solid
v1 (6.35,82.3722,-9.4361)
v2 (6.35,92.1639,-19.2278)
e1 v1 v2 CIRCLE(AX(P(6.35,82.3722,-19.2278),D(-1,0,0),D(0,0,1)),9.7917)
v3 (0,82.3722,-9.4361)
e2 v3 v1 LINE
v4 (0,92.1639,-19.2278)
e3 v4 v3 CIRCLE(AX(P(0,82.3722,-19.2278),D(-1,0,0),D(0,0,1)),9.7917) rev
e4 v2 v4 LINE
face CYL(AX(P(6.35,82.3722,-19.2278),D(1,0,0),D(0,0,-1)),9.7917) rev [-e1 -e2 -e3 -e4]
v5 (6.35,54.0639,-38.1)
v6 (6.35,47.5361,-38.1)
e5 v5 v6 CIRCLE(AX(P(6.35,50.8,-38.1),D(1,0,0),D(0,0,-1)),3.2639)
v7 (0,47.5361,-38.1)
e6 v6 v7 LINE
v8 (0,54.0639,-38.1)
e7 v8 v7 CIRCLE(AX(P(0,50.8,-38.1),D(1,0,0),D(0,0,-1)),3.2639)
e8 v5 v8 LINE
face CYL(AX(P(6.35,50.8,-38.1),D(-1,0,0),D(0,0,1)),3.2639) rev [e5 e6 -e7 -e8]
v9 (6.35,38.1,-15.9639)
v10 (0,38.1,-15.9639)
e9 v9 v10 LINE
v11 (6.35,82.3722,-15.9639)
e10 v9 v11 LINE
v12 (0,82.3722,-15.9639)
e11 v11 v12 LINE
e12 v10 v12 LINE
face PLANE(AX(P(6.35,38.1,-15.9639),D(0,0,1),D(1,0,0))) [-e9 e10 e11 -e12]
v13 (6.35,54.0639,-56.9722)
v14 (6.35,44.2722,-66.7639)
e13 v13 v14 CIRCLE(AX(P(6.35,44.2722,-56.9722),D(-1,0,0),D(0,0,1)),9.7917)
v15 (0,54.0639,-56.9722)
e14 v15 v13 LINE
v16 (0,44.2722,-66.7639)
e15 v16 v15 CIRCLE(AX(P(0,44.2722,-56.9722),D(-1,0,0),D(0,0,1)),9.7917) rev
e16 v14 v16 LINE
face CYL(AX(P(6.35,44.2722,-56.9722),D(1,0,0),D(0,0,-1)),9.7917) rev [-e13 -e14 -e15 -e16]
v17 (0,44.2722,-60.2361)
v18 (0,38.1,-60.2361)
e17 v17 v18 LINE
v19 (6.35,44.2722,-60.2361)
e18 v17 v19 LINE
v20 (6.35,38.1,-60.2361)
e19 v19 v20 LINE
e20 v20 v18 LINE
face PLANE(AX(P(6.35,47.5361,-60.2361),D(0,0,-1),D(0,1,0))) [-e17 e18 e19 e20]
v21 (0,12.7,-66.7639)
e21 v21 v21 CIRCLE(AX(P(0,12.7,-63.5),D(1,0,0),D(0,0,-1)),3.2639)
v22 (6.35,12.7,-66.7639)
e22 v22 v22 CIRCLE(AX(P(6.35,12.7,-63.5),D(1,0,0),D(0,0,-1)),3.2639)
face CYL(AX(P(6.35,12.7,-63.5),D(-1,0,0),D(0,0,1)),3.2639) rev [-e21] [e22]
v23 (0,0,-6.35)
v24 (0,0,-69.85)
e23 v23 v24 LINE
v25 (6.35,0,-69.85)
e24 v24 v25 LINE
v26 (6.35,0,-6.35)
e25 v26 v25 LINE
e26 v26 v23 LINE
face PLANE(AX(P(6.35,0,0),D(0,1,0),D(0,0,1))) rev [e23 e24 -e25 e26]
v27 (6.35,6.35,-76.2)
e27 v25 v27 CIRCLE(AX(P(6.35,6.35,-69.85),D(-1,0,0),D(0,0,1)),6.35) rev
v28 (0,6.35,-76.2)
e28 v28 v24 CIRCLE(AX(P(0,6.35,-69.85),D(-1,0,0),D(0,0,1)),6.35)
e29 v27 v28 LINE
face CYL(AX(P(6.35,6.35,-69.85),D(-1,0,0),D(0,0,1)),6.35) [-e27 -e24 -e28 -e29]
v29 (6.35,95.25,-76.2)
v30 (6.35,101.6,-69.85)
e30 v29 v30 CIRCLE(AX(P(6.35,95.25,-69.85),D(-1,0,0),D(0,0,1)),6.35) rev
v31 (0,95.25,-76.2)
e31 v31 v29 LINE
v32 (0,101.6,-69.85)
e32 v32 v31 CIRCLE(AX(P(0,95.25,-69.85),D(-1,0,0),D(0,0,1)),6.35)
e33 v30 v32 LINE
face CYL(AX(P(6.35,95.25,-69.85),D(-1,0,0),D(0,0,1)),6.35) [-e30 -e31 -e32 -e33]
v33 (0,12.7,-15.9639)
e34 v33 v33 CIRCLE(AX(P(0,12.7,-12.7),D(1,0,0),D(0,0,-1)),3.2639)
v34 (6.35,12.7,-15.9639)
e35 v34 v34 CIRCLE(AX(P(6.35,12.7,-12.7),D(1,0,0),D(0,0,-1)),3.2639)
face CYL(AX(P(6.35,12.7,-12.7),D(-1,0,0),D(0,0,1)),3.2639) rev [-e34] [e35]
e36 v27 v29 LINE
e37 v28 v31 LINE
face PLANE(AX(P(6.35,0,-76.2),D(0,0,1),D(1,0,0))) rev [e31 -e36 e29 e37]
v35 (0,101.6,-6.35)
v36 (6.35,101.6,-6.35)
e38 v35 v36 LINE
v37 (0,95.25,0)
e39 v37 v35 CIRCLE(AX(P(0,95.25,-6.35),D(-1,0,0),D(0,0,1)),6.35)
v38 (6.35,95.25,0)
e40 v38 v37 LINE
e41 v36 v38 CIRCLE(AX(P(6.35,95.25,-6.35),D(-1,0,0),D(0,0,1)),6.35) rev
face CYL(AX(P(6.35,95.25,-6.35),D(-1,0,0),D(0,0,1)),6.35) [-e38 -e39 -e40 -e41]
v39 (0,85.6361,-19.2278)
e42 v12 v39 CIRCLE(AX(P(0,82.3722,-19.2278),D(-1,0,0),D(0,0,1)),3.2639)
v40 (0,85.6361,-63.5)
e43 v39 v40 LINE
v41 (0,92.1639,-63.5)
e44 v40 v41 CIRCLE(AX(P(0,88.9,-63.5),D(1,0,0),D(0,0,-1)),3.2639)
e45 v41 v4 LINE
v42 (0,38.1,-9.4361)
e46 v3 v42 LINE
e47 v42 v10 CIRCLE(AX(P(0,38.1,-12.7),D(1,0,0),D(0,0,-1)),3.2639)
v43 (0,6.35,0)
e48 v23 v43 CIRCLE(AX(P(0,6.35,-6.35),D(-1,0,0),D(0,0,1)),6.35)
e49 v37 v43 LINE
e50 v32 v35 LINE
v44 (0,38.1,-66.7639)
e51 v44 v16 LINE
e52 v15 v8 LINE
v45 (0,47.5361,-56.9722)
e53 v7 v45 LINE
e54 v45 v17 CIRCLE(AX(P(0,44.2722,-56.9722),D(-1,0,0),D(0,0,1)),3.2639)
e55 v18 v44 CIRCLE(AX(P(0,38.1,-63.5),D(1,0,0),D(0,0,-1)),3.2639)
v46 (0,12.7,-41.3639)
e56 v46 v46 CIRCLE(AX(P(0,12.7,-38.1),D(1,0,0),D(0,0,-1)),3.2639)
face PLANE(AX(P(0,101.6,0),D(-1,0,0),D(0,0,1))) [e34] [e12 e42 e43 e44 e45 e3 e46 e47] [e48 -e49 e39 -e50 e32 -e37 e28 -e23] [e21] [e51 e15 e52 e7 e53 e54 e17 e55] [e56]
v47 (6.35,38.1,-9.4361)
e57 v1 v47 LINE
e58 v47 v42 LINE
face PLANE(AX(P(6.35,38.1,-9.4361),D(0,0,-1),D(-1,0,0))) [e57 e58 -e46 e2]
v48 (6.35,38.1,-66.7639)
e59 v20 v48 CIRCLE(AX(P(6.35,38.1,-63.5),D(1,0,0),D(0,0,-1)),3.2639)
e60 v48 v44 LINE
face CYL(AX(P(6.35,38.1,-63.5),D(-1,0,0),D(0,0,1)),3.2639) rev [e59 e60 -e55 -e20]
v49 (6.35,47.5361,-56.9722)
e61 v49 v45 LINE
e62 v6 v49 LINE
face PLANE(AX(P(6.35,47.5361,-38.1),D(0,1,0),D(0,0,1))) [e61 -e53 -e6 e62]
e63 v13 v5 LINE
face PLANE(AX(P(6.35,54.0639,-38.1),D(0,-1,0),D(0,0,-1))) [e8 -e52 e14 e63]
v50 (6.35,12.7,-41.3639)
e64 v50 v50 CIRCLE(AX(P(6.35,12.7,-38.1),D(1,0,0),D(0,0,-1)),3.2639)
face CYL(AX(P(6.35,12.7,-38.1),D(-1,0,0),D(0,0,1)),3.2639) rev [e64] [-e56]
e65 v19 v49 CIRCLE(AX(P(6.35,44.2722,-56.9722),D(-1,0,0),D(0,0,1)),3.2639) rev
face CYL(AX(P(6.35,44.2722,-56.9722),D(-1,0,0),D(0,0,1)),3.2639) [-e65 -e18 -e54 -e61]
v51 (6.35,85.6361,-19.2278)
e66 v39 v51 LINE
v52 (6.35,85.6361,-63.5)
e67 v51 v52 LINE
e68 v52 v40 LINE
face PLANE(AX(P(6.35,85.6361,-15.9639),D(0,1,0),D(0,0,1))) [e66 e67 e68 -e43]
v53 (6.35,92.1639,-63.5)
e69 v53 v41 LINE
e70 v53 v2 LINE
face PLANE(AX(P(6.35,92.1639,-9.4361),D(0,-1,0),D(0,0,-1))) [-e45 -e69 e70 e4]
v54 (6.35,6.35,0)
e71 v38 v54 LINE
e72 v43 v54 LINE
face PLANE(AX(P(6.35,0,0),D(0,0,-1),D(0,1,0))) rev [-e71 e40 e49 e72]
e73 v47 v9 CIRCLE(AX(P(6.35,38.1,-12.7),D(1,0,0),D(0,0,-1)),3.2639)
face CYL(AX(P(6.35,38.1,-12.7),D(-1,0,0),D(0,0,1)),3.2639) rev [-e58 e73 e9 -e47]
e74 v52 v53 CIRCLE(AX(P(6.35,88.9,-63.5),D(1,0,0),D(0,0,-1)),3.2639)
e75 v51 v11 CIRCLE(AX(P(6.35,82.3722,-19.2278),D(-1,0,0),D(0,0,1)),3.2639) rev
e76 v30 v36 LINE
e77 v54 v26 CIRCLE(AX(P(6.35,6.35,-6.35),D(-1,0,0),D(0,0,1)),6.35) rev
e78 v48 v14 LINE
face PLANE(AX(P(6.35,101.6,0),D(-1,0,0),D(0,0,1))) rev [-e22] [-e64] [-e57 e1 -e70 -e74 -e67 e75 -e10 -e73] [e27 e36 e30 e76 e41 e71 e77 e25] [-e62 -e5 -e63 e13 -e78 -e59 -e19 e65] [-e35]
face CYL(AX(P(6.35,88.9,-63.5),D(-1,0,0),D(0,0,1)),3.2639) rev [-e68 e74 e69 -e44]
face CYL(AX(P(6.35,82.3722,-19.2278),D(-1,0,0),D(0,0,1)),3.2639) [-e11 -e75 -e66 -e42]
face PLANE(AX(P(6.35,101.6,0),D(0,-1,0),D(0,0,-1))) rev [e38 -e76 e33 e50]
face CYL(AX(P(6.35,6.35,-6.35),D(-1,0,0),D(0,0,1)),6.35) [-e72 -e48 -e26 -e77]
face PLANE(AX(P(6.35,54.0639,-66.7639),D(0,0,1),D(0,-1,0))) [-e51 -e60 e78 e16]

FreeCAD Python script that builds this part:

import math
import FreeCAD as App
import Part
import Sketcher

V = App.Vector
Q = App.Units.Quantity


def edges_at(feature, points):
    """Names of the edges that pass closest to the given points."""
    edges = feature.Shape.Edges
    near = lambda p: min(range(len(edges)), key=lambda i: edges[i].distToShape(Part.Vertex(*p))[0])
    return sorted({f"Edge{near(p) + 1}" for p in points})

doc = App.newDocument("Part")
params = doc.addObject("Spreadsheet::Sheet", "Params")
for row, (alias, value) in enumerate([
    ("sketch1_width", "4 in"),
    ("sketch1_height", "3 in"),
    ("sketch1_diameter", "0.257 in"),
    ("pad1_length", "0.25 in"),
    ("fillet_radius", "0.1285 in"),
    ("fillet2_radius", "0.3855 in"),
    ("fillet3_radius", "0.25 in"),
], start=1):
    params.set(f"A{row}", alias)
    params.set(f"B{row}", "=" + value)
    params.setAlias(f"B{row}", alias)

body = doc.addObject("PartDesign::Body", "Body")

# Sketch on YZ plane
sketch1 = body.newObject("Sketcher::SketchObject", "Sketch")
sketch1.AttachmentSupport = (doc.getObject("YZ_Plane"), [""])
sketch1.MapMode = "FlatFace"
sketch1.addGeometry([
    Part.LineSegment(V(101.6, 0, 0), V(0, 0, 0)),  # 0
    Part.LineSegment(V(0, 0, 0), V(0, -76.2, 0)),  # 1
    Part.LineSegment(V(0, -76.2, 0), V(101.6, -76.2, 0)),  # 2
    Part.LineSegment(V(101.6, -76.2, 0), V(101.6, 0, 0)),  # 3
    Part.Circle(V(12.7, -12.7, 0), V(0, 0, 1), 3.3),  # 4
    Part.Circle(V(12.7, -38.1, 0), V(0, 0, 1), 3.3),  # 5
    Part.Circle(V(12.7, -63.5, 0), V(0, 0, 1), 3.3),  # 6
    Part.LineSegment(V(47.5, -60.2, 0), V(47.5, -38.1, 0)),  # 7
    Part.ArcOfCircle(Part.Circle(V(50.8, -38.1, 0), V(0, 0, 1), 3.3), math.radians(0), math.radians(180)),  # 8
    Part.LineSegment(V(54.1, -38.1, 0), V(54.1, -66.8, 0)),  # 9
    Part.LineSegment(V(54.1, -66.8, 0), V(38.1, -66.8, 0)),  # 10
    Part.ArcOfCircle(Part.Circle(V(38.1, -63.5, 0), V(0, 0, 1), 3.3), math.radians(90), math.radians(270)),  # 11
    Part.LineSegment(V(38.1, -60.2, 0), V(47.5, -60.2, 0)),  # 12
    Part.LineSegment(V(85.6, -16, 0), V(38.1, -16, 0)),  # 13
    Part.ArcOfCircle(Part.Circle(V(38.1, -12.7, 0), V(0, 0, 1), 3.3), math.radians(90), math.radians(270)),  # 14
    Part.LineSegment(V(38.1, -9.4, 0), V(92.2, -9.4, 0)),  # 15
    Part.LineSegment(V(92.2, -9.4, 0), V(92.2, -63.5, 0)),  # 16
    Part.ArcOfCircle(Part.Circle(V(88.9, -63.5, 0), V(0, 0, 1), 3.3), math.radians(180), math.radians(360)),  # 17
    Part.LineSegment(V(85.6, -63.5, 0), V(85.6, -16, 0)),  # 18
], False)
sketch1.addConstraint([
    Sketcher.Constraint("Coincident", 0, 2, 1, 1),
    Sketcher.Constraint("Coincident", 1, 2, 2, 1),
    Sketcher.Constraint("Coincident", 2, 2, 3, 1),
    Sketcher.Constraint("Coincident", 3, 2, 0, 1),
    Sketcher.Constraint("Tangent", 7, 2, 8, 2),
    Sketcher.Constraint("Tangent", 8, 1, 9, 1),
    Sketcher.Constraint("Coincident", 9, 2, 10, 1),
    Sketcher.Constraint("Tangent", 10, 2, 11, 2),
    Sketcher.Constraint("Tangent", 11, 1, 12, 1),
    Sketcher.Constraint("Coincident", 12, 2, 7, 1),
    Sketcher.Constraint("Tangent", 13, 2, 14, 2),
    Sketcher.Constraint("Tangent", 14, 1, 15, 1),
    Sketcher.Constraint("Coincident", 15, 2, 16, 1),
    Sketcher.Constraint("Tangent", 16, 2, 17, 2),
    Sketcher.Constraint("Tangent", 17, 1, 18, 1),
    Sketcher.Constraint("Coincident", 18, 2, 13, 1),
    Sketcher.Constraint("Horizontal", 0),
    Sketcher.Constraint("Vertical", 1),
    Sketcher.Constraint("Horizontal", 2),
    Sketcher.Constraint("Vertical", 3),
    Sketcher.Constraint("Vertical", 7),
    Sketcher.Constraint("Vertical", 9),
    Sketcher.Constraint("Horizontal", 10),
    Sketcher.Constraint("Horizontal", 12),
    Sketcher.Constraint("Horizontal", 13),
    Sketcher.Constraint("Horizontal", 15),
    Sketcher.Constraint("Vertical", 16),
    Sketcher.Constraint("Vertical", 18),
    Sketcher.Constraint("Coincident", 0, 2, -1, 1),
    Sketcher.Constraint("Equal", 4, 5),
    Sketcher.Constraint("Equal", 5, 6),
    Sketcher.Constraint("Equal", 6, 8),
    Sketcher.Constraint("Equal", 8, 11),
    Sketcher.Constraint("Equal", 11, 14),
    Sketcher.Constraint("Equal", 14, 17),
    Sketcher.Constraint("Horizontal", 5, 3, 8, 3),
    Sketcher.Constraint("Horizontal", 6, 3, 11, 3),
    Sketcher.Constraint("Horizontal", 4, 3, 14, 3),
    Sketcher.Constraint("Horizontal", 11, 3, 17, 3),
    Sketcher.Constraint("Vertical", 4, 3, 5, 3),
    Sketcher.Constraint("Vertical", 5, 3, 6, 3),
    Sketcher.Constraint("Vertical", 11, 3, 14, 3),
    Sketcher.Constraint("Equal", 15, 16),
    Sketcher.Constraint("DistanceX", 0, 2, 0, 1, Q("4 in")),
    Sketcher.Constraint("DistanceY", 1, 2, 1, 1, Q("3 in")),
    Sketcher.Constraint("Diameter", 4, Q("0.257 in")),
    Sketcher.Constraint("DistanceX", -1, 1, 8, 3, Q("2 in")),
    Sketcher.Constraint("DistanceY", 5, 3, 4, 3, Q("1 in")),
    Sketcher.Constraint("DistanceY", 6, 3, 5, 3, Q("1 in")),
    Sketcher.Constraint("DistanceX", 6, 3, 11, 3, Q("1 in")),
    Sketcher.Constraint("DistanceX", -1, 1, 4, 3, Q("0.5 in")),
    Sketcher.Constraint("DistanceY", 4, 3, -1, 1, Q("0.5 in")),
])
sketch1.setExpression("Constraints[43]", "Params.sketch1_width")
sketch1.setExpression("Constraints[44]", "Params.sketch1_height")
sketch1.setExpression("Constraints[45]", "Params.sketch1_diameter")
pad1 = body.newObject("PartDesign::Pad", "Pad")
pad1.Profile = sketch1
pad1.setExpression("Length", "Params.pad1_length")
doc.recompute()

fillet = body.newObject("PartDesign::Fillet", "Fillet")
fillet.Base = (pad1, edges_at(pad1, [(3.175, 47.536, -60.236), (3.175, 85.636, -15.964)]))
fillet.setExpression("Radius", "Params.fillet_radius")
doc.recompute()

fillet2 = body.newObject("PartDesign::Fillet", "Fillet001")
fillet2.Base = (fillet, edges_at(fillet, [(3.175, 54.064, -66.764), (3.175, 92.164, -9.436)]))
fillet2.setExpression("Radius", "Params.fillet2_radius")
doc.recompute()

fillet3 = body.newObject("PartDesign::Fillet", "Fillet002")
fillet3.Base = (fillet2, edges_at(fillet2, [
    (3.175, 101.6, 0),
    (3.175, 101.6, -76.2),
    (3.175, 0, -76.2),
    (3.175, 0, 0),
]))
fillet3.setExpression("Radius", "Params.fillet3_radius")

doc.recompute()
